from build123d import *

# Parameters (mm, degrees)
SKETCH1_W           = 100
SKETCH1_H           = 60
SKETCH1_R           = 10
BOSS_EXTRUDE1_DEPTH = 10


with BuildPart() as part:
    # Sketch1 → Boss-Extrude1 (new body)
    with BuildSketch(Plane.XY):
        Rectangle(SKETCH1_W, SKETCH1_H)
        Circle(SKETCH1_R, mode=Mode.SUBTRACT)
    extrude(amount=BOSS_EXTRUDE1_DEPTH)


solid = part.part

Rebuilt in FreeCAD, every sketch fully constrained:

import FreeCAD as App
import Part
import Sketcher

V = App.Vector


def add_polygon(sketch, points):
    """Adds a closed chain of lines whose ends are joined by coincident constraints."""
    first, n = sketch.GeometryCount, len(points)
    for a, b in zip(points, points[1:] + points[:1]):
        sketch.addGeometry(Part.LineSegment(App.Vector(*a, 0), App.Vector(*b, 0)), False)
    for i in range(n):
        sketch.addConstraint(Sketcher.Constraint("Coincident", first + i, 2, first + (i + 1) % n, 1))

doc = App.newDocument("Part")
body = doc.addObject("PartDesign::Body", "Body")

# Sketch on XY plane
sketch1 = body.newObject("Sketcher::SketchObject", "Sketch")
sketch1.AttachmentSupport = (doc.getObject("XY_Plane"), [""])
sketch1.MapMode = "FlatFace"
add_polygon(sketch1, [(-50, 30), (-50, -30), (50, -30), (50, 30)])  # lines 0-3
sketch1.addGeometry(Part.Circle(V(0, 0, 0), V(0, 0, 1), 10), False)  # 4
sketch1.addConstraint(Sketcher.Constraint("Vertical", 0))
sketch1.addConstraint(Sketcher.Constraint("Horizontal", 1))
sketch1.addConstraint(Sketcher.Constraint("Vertical", 2))
sketch1.addConstraint(Sketcher.Constraint("Horizontal", 3))
sketch1.addConstraint(Sketcher.Constraint("Coincident", 4, 3, -1, 1))
sketch1.addConstraint(Sketcher.Constraint("Symmetric", 0, 2, 2, 2, -1, 1))
sketch1.addConstraint(Sketcher.Constraint("Diameter", 4, 20.0))
sketch1.addConstraint(Sketcher.Constraint("DistanceX", 1, 1, 1, 2, 100.0))
sketch1.addConstraint(Sketcher.Constraint("DistanceY", 0, 2, 0, 1, 60.0))
pad1 = body.newObject("PartDesign::Pad", "Pad")
pad1.Profile = sketch1
pad1.Length = 10

doc.recompute()
